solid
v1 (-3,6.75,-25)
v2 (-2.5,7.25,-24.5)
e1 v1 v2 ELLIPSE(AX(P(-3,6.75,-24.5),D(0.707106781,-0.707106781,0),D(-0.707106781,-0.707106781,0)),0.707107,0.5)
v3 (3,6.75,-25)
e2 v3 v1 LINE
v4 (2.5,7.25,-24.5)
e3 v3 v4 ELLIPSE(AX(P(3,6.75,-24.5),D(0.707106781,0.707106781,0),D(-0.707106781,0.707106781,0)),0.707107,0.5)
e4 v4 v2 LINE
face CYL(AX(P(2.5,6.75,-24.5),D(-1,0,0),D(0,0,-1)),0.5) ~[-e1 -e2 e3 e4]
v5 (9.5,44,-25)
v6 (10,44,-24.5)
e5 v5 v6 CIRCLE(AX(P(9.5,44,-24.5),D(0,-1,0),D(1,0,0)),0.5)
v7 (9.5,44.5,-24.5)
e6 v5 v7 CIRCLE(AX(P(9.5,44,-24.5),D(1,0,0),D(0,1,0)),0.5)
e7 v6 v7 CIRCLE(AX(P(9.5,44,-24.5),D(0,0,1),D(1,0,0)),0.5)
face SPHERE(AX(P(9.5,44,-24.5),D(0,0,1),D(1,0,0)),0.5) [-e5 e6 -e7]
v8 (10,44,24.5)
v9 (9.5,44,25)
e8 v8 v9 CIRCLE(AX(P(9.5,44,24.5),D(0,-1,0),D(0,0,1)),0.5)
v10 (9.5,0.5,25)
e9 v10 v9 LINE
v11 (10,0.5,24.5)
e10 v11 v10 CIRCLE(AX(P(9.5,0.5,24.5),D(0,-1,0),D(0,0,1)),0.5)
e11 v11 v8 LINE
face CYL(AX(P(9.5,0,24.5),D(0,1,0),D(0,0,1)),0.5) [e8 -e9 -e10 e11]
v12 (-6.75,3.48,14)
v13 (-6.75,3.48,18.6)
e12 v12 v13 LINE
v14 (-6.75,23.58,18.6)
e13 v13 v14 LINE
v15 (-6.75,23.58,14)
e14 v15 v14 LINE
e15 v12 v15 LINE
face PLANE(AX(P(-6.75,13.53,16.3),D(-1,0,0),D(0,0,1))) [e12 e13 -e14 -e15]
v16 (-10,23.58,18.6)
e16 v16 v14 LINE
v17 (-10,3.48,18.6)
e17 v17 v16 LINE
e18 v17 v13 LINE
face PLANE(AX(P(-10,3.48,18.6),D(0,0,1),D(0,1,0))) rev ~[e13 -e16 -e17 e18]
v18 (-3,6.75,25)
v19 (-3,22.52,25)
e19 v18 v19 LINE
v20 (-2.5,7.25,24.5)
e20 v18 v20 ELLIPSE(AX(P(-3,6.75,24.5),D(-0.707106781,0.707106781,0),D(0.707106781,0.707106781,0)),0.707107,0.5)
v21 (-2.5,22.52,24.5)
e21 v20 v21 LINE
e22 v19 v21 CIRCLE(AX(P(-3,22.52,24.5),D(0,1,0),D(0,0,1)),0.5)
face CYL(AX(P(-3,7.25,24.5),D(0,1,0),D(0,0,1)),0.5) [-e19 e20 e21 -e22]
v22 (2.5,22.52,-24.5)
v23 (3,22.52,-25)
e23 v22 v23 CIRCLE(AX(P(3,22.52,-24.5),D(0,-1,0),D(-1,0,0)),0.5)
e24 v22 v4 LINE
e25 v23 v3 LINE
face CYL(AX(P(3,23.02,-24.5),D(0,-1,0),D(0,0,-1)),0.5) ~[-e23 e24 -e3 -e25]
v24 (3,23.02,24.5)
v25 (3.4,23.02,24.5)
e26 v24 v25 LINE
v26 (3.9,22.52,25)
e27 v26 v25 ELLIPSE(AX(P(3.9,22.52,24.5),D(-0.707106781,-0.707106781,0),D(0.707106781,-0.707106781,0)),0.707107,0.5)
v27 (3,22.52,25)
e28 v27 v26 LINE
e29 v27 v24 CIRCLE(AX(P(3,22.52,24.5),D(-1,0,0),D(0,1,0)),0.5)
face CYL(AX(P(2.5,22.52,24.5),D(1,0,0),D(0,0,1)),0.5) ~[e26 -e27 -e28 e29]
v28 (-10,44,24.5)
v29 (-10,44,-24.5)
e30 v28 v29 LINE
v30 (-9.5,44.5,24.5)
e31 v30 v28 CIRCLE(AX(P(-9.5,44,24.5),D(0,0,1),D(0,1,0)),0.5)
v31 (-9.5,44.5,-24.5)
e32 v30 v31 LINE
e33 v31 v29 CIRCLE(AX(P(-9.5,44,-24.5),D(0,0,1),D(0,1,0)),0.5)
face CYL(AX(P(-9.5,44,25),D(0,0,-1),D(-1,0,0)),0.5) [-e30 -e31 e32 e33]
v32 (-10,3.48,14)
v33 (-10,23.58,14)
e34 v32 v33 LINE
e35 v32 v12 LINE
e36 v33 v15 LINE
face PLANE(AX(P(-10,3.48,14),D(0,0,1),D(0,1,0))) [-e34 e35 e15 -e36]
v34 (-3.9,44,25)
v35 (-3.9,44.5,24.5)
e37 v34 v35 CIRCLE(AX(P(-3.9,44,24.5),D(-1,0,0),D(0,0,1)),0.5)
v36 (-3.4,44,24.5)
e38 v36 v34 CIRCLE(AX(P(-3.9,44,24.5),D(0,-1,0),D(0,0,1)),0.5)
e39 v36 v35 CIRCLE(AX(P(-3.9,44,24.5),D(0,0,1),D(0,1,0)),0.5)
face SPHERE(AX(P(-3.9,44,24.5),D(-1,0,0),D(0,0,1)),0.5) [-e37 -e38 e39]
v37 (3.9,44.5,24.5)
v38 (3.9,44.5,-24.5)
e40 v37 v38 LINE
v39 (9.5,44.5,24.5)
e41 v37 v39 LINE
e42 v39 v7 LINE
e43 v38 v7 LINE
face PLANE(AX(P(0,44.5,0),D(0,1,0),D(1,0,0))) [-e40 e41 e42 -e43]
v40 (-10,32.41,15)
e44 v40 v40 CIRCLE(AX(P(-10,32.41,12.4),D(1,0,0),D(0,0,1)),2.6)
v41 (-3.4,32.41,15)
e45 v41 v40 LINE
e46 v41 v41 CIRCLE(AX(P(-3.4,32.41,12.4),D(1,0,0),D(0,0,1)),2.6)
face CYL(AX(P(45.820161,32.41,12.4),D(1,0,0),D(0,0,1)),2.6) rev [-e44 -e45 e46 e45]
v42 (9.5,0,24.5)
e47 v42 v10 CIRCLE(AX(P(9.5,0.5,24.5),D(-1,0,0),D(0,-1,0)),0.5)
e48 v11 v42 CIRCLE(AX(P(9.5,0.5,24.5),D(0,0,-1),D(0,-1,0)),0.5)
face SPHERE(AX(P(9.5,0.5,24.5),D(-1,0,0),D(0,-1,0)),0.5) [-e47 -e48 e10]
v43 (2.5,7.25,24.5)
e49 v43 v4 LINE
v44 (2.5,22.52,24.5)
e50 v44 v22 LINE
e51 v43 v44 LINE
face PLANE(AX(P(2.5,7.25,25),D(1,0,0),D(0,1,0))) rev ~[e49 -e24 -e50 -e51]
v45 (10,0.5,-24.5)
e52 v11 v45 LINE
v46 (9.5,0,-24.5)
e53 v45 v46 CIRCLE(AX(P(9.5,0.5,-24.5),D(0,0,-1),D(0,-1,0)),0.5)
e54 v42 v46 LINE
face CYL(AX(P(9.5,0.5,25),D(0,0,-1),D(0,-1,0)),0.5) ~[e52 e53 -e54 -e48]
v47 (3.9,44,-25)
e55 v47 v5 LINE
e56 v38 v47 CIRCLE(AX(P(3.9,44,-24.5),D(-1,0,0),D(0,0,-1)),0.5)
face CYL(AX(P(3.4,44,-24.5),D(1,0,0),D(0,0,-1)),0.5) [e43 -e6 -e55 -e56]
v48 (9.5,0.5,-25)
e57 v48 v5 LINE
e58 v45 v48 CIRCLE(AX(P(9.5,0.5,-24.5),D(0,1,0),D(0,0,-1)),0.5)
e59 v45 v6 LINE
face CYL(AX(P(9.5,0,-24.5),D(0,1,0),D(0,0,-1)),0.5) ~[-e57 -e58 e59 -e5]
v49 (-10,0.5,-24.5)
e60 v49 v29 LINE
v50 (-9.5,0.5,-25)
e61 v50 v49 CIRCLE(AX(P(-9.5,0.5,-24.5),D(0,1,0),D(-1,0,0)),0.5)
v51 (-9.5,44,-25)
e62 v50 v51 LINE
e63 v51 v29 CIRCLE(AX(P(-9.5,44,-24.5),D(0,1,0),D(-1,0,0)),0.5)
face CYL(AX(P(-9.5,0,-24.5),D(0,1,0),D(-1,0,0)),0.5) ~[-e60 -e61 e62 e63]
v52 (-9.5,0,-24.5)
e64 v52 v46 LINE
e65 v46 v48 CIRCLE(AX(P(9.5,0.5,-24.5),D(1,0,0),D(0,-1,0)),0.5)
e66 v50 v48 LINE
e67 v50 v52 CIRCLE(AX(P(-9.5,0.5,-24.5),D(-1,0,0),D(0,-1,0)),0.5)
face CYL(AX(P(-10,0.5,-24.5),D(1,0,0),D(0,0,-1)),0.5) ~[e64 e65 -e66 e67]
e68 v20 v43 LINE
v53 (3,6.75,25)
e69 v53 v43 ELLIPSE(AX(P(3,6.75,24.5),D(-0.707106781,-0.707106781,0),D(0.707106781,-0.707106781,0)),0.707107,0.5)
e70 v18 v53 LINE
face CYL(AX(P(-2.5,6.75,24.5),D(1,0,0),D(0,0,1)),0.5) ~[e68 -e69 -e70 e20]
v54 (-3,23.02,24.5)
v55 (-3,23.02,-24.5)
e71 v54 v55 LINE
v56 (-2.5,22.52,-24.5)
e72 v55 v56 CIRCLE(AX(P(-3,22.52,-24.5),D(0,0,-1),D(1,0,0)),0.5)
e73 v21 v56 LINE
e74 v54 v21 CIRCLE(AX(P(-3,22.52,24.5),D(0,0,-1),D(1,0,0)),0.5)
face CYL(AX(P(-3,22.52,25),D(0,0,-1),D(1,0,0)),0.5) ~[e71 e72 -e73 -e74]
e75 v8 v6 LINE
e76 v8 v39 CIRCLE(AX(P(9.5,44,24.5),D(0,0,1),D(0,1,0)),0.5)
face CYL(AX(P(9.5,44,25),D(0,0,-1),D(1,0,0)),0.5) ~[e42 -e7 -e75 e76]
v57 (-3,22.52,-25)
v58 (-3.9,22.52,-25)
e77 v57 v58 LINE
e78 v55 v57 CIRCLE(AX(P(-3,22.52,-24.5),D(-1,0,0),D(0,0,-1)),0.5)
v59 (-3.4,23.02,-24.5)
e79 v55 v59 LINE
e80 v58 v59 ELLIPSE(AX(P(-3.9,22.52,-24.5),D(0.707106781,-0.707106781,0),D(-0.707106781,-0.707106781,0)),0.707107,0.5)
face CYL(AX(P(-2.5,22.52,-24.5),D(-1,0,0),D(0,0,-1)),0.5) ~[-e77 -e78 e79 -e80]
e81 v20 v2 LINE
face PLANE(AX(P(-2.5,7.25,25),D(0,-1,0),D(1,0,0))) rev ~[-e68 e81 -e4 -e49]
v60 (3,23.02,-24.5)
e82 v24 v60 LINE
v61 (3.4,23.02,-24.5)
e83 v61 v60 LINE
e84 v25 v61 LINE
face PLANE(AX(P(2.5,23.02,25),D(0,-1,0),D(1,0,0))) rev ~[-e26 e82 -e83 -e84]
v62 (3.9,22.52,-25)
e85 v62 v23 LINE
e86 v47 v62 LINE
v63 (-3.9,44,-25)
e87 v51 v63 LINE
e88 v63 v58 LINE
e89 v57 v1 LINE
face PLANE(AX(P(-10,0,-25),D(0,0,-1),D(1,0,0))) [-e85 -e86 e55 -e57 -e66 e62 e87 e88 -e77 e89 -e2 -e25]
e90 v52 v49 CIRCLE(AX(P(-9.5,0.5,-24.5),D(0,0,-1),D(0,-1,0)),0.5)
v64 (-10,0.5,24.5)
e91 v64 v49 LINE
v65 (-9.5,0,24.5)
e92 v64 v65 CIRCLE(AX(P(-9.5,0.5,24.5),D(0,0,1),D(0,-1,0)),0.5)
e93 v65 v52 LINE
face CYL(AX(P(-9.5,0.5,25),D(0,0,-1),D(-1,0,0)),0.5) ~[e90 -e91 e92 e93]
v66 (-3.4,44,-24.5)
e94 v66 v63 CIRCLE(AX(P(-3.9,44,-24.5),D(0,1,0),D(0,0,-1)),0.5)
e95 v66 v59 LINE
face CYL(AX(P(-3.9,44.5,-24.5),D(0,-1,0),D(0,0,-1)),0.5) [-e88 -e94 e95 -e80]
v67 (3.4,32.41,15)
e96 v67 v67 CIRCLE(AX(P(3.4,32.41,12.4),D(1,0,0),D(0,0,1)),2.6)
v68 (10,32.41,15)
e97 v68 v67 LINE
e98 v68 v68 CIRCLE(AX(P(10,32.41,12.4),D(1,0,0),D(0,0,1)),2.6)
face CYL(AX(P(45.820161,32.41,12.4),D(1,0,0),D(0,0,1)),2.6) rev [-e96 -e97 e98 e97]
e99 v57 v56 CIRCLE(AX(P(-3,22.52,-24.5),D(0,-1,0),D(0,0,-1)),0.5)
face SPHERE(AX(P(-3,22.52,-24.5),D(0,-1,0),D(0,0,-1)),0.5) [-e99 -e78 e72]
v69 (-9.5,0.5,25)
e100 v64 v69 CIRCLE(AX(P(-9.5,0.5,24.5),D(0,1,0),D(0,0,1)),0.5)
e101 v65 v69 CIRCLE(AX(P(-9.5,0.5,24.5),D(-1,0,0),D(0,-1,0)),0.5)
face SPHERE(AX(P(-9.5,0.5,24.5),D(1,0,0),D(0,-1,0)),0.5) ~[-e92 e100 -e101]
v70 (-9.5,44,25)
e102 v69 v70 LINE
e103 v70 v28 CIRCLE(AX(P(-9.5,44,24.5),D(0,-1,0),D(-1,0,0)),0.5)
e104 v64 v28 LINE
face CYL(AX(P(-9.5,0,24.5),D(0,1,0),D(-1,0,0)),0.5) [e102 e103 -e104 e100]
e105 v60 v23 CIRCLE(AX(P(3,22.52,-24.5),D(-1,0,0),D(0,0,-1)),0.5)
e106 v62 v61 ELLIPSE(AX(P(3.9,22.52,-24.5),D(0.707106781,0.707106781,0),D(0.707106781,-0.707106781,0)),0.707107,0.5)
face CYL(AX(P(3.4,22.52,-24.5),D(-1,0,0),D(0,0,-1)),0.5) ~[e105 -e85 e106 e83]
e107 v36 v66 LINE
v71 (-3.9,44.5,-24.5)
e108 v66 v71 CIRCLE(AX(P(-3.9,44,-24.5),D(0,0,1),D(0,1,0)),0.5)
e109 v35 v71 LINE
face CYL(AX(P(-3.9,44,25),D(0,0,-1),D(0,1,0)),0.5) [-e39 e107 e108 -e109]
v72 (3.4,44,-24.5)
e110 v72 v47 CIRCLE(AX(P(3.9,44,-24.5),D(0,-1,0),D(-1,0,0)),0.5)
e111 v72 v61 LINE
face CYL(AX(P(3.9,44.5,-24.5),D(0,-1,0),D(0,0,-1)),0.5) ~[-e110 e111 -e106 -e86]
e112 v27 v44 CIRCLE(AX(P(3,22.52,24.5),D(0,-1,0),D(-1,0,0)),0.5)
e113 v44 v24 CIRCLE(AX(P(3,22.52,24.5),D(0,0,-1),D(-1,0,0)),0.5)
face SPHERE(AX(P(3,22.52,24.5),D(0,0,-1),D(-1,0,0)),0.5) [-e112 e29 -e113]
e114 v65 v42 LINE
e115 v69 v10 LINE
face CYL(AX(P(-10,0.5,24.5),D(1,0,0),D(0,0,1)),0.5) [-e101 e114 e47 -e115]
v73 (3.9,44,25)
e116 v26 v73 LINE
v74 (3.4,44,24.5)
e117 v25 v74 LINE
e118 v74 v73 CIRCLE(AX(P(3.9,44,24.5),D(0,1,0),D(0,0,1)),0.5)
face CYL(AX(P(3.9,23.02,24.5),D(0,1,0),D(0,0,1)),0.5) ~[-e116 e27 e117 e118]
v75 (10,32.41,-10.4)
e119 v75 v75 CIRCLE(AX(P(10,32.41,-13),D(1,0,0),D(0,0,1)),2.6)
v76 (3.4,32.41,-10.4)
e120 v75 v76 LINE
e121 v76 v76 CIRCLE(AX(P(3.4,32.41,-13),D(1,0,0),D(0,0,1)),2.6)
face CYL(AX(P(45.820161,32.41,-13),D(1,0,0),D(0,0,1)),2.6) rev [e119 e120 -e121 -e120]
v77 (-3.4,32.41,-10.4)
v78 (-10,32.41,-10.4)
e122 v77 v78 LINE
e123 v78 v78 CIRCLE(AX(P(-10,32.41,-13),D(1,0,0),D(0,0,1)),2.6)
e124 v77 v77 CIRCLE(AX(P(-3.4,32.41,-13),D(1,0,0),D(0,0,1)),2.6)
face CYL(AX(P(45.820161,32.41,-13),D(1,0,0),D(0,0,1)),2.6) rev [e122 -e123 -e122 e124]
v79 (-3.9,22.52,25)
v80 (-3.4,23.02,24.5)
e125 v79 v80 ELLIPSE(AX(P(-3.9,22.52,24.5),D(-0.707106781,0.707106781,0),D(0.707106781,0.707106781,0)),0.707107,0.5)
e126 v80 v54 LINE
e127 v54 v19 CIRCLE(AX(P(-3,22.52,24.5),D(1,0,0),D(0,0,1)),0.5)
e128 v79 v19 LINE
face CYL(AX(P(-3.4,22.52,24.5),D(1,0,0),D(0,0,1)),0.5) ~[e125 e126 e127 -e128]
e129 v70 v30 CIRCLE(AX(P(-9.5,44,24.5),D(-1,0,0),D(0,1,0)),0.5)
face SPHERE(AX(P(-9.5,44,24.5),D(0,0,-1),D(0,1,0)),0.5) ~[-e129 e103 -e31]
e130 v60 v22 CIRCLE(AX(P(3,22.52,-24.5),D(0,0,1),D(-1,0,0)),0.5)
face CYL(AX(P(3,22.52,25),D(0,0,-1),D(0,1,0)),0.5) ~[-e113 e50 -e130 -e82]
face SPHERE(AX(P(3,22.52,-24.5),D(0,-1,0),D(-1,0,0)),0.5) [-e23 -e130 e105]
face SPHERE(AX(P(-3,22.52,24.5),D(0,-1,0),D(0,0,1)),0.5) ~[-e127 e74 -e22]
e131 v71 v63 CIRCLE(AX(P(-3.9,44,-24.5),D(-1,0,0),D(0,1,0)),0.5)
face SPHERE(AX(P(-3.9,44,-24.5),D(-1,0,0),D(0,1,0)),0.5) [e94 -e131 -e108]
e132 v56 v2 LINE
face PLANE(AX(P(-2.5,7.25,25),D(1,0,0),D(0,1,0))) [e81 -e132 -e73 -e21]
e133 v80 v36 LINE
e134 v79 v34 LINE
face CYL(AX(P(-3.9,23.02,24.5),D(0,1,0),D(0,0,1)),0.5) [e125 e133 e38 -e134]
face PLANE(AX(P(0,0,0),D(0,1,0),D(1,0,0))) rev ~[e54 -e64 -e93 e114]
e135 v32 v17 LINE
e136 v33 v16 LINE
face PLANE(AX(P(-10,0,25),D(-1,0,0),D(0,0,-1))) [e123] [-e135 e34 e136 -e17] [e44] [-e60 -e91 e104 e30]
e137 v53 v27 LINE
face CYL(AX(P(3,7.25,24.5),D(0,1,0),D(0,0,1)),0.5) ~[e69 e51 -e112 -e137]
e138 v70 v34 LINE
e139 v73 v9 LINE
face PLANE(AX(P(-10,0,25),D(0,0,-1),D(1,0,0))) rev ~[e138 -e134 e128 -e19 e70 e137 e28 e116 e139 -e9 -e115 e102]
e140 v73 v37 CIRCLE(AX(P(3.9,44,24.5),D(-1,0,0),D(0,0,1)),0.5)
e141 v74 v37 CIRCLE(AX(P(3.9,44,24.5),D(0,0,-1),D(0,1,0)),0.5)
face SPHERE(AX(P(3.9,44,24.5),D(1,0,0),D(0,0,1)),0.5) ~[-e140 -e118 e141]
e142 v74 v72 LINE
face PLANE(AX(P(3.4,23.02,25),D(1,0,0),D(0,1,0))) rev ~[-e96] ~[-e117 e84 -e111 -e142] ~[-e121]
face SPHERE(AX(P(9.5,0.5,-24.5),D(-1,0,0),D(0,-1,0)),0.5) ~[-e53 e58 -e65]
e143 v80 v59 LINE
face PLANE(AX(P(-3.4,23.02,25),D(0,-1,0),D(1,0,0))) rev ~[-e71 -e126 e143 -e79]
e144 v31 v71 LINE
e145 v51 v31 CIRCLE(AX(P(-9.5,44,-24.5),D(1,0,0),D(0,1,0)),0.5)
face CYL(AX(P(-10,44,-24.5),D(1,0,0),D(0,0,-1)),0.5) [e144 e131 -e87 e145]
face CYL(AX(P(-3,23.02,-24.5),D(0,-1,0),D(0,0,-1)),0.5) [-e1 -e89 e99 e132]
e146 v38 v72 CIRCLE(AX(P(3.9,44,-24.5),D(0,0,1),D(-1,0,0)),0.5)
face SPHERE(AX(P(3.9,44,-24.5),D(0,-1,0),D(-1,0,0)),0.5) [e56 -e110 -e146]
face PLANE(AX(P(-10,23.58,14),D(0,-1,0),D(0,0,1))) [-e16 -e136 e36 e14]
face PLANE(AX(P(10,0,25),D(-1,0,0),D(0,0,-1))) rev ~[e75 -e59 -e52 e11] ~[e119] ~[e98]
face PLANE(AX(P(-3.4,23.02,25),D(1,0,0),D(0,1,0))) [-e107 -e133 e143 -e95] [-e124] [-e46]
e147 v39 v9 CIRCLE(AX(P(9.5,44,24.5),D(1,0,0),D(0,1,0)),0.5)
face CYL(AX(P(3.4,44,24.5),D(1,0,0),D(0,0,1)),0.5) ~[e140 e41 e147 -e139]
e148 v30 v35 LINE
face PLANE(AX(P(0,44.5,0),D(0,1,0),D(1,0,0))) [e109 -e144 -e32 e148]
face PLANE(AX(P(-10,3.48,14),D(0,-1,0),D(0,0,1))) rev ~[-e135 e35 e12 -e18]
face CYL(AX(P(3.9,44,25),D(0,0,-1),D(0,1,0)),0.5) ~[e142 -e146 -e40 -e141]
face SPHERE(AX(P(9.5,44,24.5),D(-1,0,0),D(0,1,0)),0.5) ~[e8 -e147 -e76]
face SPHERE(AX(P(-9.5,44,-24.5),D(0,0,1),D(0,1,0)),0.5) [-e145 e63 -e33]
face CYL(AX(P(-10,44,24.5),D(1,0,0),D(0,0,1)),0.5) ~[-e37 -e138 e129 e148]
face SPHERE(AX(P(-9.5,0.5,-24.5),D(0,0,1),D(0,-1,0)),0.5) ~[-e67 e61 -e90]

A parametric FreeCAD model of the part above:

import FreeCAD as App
import Part
import Sketcher
Q = App.Units.Quantity


def edges_at(feature, points):
    """Names of the edges that pass closest to the given points."""
    edges = feature.Shape.Edges
    near = lambda p: min(range(len(edges)), key=lambda i: edges[i].distToShape(Part.Vertex(*p))[0])
    return sorted({f"Edge{near(p) + 1}" for p in points})

doc = App.newDocument("Part")
body = doc.addObject("PartDesign::Body", "Body")

# Sketch on XZ plane
sketch1 = body.newObject("Sketcher::SketchObject", "Sketch")
sketch1.AttachmentSupport = (doc.getObject("XZ_Plane"), [""])
sketch1.MapMode = "FlatFace"
sketch1.addGeometry([
    Part.LineSegment(App.Vector(-10, -25, 0), App.Vector(-10, 25, 0)),
    Part.LineSegment(App.Vector(-10, 25, 0), App.Vector(10, 25, 0)),
    Part.LineSegment(App.Vector(10, 25, 0), App.Vector(10, -25, 0)),
    Part.LineSegment(App.Vector(10, -25, 0), App.Vector(-10, -25, 0)),
], False)
sketch1.addConstraint([
    Sketcher.Constraint("Coincident", 0, 2, 1, 1),
    Sketcher.Constraint("Coincident", 1, 2, 2, 1),
    Sketcher.Constraint("Coincident", 2, 2, 3, 1),
    Sketcher.Constraint("Coincident", 3, 2, 0, 1),
    Sketcher.Constraint("Vertical", 0),
    Sketcher.Constraint("Horizontal", 1),
    Sketcher.Constraint("Vertical", 2),
    Sketcher.Constraint("Horizontal", 3),
    Sketcher.Constraint("Symmetric", 0, 2, 2, 2, -1, 1),
    Sketcher.Constraint("DistanceX", 1, 1, 1, 2, Q("20 mm")),
    Sketcher.Constraint("DistanceY", 0, 1, 0, 2, Q("50 mm")),
])
pad1 = body.newObject("PartDesign::Pad", "Pad")
pad1.Profile = sketch1
pad1.Length = 44.5
pad1.Reversed = True

# Sketch on XY plane
sketch2 = body.newObject("Sketcher::SketchObject", "Sketch001")
sketch2.AttachmentSupport = (doc.getObject("XY_Plane"), [""])
sketch2.MapMode = "FlatFace"
sketch2.AttachmentOffset = App.Placement(App.Vector(0, 0, 25), App.Rotation())
sketch2.addGeometry([
    Part.LineSegment(App.Vector(-3.4, 44.5, 0), App.Vector(-3.4, 23.02, 0)),  # 0
    Part.LineSegment(App.Vector(-3.4, 23.02, 0), App.Vector(-2.5, 23.02, 0)),  # 1
    Part.LineSegment(App.Vector(-2.5, 23.02, 0), App.Vector(-2.5, 7.25, 0)),  # 2
    Part.LineSegment(App.Vector(-2.5, 7.25, 0), App.Vector(2.5, 7.25, 0)),  # 3
    Part.LineSegment(App.Vector(2.5, 7.25, 0), App.Vector(2.5, 23.02, 0)),  # 4
    Part.LineSegment(App.Vector(2.5, 23.02, 0), App.Vector(3.4, 23.02, 0)),  # 5
    Part.LineSegment(App.Vector(3.4, 23.02, 0), App.Vector(3.4, 44.5, 0)),  # 6
    Part.LineSegment(App.Vector(3.4, 44.5, 0), App.Vector(-3.4, 44.5, 0)),  # 7
], False)
sketch2.addConstraint([
    Sketcher.Constraint("Coincident", 0, 2, 1, 1),
    Sketcher.Constraint("Coincident", 1, 2, 2, 1),
    Sketcher.Constraint("Coincident", 2, 2, 3, 1),
    Sketcher.Constraint("Coincident", 3, 2, 4, 1),
    Sketcher.Constraint("Coincident", 4, 2, 5, 1),
    Sketcher.Constraint("Coincident", 5, 2, 6, 1),
    Sketcher.Constraint("Coincident", 6, 2, 7, 1),
    Sketcher.Constraint("Coincident", 7, 2, 0, 1),
    Sketcher.Constraint("Vertical", 0),
    Sketcher.Constraint("Horizontal", 1),
    Sketcher.Constraint("Vertical", 2),
    Sketcher.Constraint("Horizontal", 3),
    Sketcher.Constraint("Vertical", 4),
    Sketcher.Constraint("Horizontal", 5),
    Sketcher.Constraint("Vertical", 6),
    Sketcher.Constraint("Horizontal", 7),
    Sketcher.Constraint("Symmetric", 1, 2, 4, 2, -2),
    Sketcher.Constraint("Equal", 1, 5),
    Sketcher.Constraint("DistanceX", 3, 1, 3, 2, Q("5 mm")),
    Sketcher.Constraint("DistanceX", 1, 1, 1, 2, Q("0.9 mm")),
    Sketcher.Constraint("DistanceY", 0, 2, 0, 1, Q("21.48 mm")),
    Sketcher.Constraint("DistanceY", 2, 2, 2, 1, Q("15.77 mm")),
    Sketcher.Constraint("DistanceY", -1, 1, 6, 2, Q("44.5 mm")),
])
pocket1 = body.newObject("PartDesign::Pocket", "Pocket")
pocket1.Profile = sketch2
pocket1.Type = "ThroughAll"
doc.recompute()

fillet = body.newObject("PartDesign::Fillet", "Fillet")
fillet.Base = (pocket1, edges_at(pocket1, [
    (-10, 44.5, 0),
    (-6.7, 44.5, -25),
    (6.7, 44.5, 25),
    (-6.7, 44.5, 25),
    (0, 7.25, -25),
    (-2.5, 15.135, 25),
    (2.5, 15.135, -25),
    (2.5, 23.02, 0),
    (-2.5, 15.135, -25),
    (3.4, 33.76, -25),
    (0, 7.25, 25),
    (2.5, 15.135, 25),
    (2.95, 23.02, 25),
    (-3.4, 33.76, 25),
    (-2.95, 23.02, 25),
    (-3.4, 44.5, 0),
    (3.4, 33.76, 25),
    (3.4, 44.5, 0),
    (-3.4, 33.76, -25),
    (-2.95, 23.02, -25),
    (-2.5, 23.02, 0),
    (2.95, 23.02, -25),
    (10, 44.5, 0),
    (0, 0, 25),
    (-10, 0, 0),
    (0, 0, -25),
    (10, 0, 0),
    (10, 22.25, 25),
    (-10, 22.25, 25),
    (-10, 22.25, -25),
    (10, 22.25, -25),
    (6.7, 44.5, -25),
]))
fillet.Radius = 0.5

# Sketch on YZ plane
sketch3 = body.newObject("Sketcher::SketchObject", "Sketch002")
sketch3.AttachmentSupport = (doc.getObject("YZ_Plane"), [""])
sketch3.MapMode = "FlatFace"
sketch3.AttachmentOffset = App.Placement(App.Vector(0, 0, -10), App.Rotation())
sketch3.addGeometry([
    Part.LineSegment(App.Vector(23.58, 14, 0), App.Vector(3.48, 14, 0)),
    Part.LineSegment(App.Vector(3.48, 14, 0), App.Vector(3.48, 18.6, 0)),
    Part.LineSegment(App.Vector(3.48, 18.6, 0), App.Vector(23.58, 18.6, 0)),
    Part.LineSegment(App.Vector(23.58, 18.6, 0), App.Vector(23.58, 14, 0)),
], False)
sketch3.addConstraint([
    Sketcher.Constraint("Coincident", 0, 2, 1, 1),
    Sketcher.Constraint("Coincident", 1, 2, 2, 1),
    Sketcher.Constraint("Coincident", 2, 2, 3, 1),
    Sketcher.Constraint("Coincident", 3, 2, 0, 1),
    Sketcher.Constraint("Horizontal", 0),
    Sketcher.Constraint("Vertical", 1),
    Sketcher.Constraint("Horizontal", 2),
    Sketcher.Constraint("Vertical", 3),
    Sketcher.Constraint("DistanceX", 0, 2, 0, 1, Q("20.1 mm")),
    Sketcher.Constraint("DistanceY", 1, 1, 1, 2, Q("4.6 mm")),
    Sketcher.Constraint("DistanceY", -1, 1, 0, 2, Q("14 mm")),
    Sketcher.Constraint("DistanceX", -1, 1, 0, 2, Q("3.48 mm")),
])
pocket2 = body.newObject("PartDesign::Pocket", "Pocket001")
pocket2.Profile = sketch3
pocket2.Length = 3.25
pocket2.Reversed = True

# Sketch on YZ plane
sketch4 = body.newObject("Sketcher::SketchObject", "Sketch003")
sketch4.AttachmentSupport = (doc.getObject("YZ_Plane"), [""])
sketch4.MapMode = "FlatFace"
sketch4.AttachmentOffset = App.Placement(App.Vector(0, 0, -10), App.Rotation())
sketch4.addGeometry([
    Part.Circle(App.Vector(32.41, -13, 0), App.Vector(0, 0, 1), 2.6),
    Part.Circle(App.Vector(32.41, 12.4, 0), App.Vector(0, 0, 1), 2.6),
], False)
sketch4.addConstraint([
    Sketcher.Constraint("Equal", 0, 1),
    Sketcher.Constraint("Vertical", 0, 3, 1, 3),
    Sketcher.Constraint("Diameter", 0, Q("5.2 mm")),
    Sketcher.Constraint("DistanceY", 0, 3, -1, 1, Q("13 mm")),
    Sketcher.Constraint("DistanceY", -1, 1, 1, 3, Q("12.4 mm")),
    Sketcher.Constraint("DistanceX", -1, 1, 0, 3, Q("32.41 mm")),
])
pocket3 = body.newObject("PartDesign::Pocket", "Pocket002")
pocket3.Profile = sketch4
pocket3.Type = "ThroughAll"
pocket3.Midplane = True

doc.recompute()
